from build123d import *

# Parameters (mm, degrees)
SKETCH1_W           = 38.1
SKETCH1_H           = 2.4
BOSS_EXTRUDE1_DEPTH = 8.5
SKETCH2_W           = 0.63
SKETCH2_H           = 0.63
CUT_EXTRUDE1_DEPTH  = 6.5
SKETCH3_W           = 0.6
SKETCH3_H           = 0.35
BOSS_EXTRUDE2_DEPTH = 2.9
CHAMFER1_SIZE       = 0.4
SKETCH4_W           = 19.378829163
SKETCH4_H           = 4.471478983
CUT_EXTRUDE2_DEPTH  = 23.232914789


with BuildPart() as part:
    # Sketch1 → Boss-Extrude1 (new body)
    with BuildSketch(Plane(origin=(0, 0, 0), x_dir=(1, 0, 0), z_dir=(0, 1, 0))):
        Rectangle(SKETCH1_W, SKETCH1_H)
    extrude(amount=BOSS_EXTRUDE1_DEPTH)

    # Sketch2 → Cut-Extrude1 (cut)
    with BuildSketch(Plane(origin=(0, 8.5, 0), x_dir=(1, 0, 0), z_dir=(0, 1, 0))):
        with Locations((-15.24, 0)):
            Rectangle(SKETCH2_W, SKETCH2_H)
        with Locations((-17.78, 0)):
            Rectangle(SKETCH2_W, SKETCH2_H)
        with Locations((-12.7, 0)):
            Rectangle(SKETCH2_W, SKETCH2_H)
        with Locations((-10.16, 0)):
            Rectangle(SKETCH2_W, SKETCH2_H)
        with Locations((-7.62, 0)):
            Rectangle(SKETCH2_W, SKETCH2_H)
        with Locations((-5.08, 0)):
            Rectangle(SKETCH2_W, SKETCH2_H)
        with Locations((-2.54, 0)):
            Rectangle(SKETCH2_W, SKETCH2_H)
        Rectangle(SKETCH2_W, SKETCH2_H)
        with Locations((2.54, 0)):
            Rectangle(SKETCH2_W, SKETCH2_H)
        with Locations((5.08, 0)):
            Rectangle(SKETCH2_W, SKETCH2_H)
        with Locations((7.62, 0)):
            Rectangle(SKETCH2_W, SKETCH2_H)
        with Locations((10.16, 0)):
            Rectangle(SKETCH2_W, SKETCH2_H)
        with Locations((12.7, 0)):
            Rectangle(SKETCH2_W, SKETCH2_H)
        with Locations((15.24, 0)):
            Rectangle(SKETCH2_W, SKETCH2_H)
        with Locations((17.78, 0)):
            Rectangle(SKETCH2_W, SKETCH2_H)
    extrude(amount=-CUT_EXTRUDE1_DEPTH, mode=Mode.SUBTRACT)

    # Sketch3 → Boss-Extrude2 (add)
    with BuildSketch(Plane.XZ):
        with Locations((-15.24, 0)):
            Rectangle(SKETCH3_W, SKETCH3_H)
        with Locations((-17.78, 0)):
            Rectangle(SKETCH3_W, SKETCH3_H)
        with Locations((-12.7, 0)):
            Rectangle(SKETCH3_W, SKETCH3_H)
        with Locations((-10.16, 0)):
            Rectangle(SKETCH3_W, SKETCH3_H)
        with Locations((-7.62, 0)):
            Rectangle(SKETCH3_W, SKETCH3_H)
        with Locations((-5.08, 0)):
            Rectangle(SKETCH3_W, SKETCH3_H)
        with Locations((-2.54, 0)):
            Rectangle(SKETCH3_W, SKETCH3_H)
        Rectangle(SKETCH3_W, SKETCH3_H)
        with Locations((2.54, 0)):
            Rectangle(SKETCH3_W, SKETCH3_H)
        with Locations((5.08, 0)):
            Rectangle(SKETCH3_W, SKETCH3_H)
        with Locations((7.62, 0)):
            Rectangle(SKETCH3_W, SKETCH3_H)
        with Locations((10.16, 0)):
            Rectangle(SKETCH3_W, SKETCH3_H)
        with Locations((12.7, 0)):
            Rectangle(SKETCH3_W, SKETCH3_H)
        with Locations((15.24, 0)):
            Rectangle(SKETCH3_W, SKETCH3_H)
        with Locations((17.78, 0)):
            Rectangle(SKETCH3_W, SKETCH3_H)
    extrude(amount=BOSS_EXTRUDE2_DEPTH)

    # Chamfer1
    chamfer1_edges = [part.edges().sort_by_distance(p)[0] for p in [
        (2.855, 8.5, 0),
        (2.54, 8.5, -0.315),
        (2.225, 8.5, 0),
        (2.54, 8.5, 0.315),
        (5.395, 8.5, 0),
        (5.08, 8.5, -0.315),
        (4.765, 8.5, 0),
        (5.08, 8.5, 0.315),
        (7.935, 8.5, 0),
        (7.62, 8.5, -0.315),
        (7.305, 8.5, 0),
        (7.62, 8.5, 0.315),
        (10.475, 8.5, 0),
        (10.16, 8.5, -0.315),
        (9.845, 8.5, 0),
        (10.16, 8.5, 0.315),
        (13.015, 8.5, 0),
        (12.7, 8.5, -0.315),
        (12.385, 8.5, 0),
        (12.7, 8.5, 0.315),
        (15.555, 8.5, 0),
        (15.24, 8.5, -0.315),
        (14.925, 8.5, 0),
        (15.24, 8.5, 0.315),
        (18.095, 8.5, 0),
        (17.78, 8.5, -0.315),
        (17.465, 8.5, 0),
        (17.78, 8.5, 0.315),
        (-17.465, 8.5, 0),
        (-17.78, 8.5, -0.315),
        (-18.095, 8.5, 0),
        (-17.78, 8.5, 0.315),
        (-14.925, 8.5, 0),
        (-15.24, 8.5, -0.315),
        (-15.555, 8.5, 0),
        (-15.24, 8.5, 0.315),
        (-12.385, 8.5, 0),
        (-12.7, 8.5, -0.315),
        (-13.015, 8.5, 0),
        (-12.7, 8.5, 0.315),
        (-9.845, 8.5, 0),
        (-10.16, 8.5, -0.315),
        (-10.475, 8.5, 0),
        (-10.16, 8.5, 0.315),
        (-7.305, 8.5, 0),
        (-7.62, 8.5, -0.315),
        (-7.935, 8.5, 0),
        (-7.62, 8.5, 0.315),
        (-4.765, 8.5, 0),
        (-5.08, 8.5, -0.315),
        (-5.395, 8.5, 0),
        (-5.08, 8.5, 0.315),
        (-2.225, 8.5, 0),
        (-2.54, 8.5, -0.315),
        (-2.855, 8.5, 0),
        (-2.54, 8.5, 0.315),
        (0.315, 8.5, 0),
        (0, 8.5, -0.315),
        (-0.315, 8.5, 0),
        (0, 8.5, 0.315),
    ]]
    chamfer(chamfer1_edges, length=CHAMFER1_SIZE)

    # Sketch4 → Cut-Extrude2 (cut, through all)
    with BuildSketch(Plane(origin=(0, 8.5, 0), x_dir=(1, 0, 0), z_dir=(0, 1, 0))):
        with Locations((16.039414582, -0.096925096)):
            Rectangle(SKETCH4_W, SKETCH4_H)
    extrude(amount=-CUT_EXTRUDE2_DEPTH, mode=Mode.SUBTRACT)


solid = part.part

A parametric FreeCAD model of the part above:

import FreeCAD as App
import Part
import Sketcher
from FreeCAD import Vector


def edges_at(feature, points):
    """Names of the edges that pass closest to the given points."""
    edges = feature.Shape.Edges
    near = lambda p: min(range(len(edges)), key=lambda i: edges[i].distToShape(Part.Vertex(*p))[0])
    return sorted({f"Edge{near(p) + 1}" for p in points})


def add_polygon(sketch, points):
    """Adds a closed chain of lines whose ends are joined by coincident constraints."""
    first, n = sketch.GeometryCount, len(points)
    for a, b in zip(points, points[1:] + points[:1]):
        sketch.addGeometry(Part.LineSegment(App.Vector(*a, 0), App.Vector(*b, 0)), False)
    for i in range(n):
        sketch.addConstraint(Sketcher.Constraint("Coincident", first + i, 2, first + (i + 1) % n, 1))

doc = App.newDocument("Part")
body = doc.addObject("PartDesign::Body", "Body")

# Sketch on XZ plane
sketch1 = body.newObject("Sketcher::SketchObject", "Sketch")
sketch1.AttachmentSupport = (doc.getObject("XZ_Plane"), [""])
sketch1.MapMode = "FlatFace"
add_polygon(sketch1, [(-19.1, -1.2), (-19.1, 1.2), (19.1, 1.2), (19.1, -1.2)])  # lines 0-3
sketch1.addConstraint(Sketcher.Constraint("Vertical", 0))
sketch1.addConstraint(Sketcher.Constraint("Horizontal", 1))
sketch1.addConstraint(Sketcher.Constraint("Vertical", 2))
sketch1.addConstraint(Sketcher.Constraint("Horizontal", 3))
sketch1.addConstraint(Sketcher.Constraint("Symmetric", 0, 2, 2, 2, -1, 1))
sketch1.addConstraint(Sketcher.Constraint("DistanceX", 1, 1, 1, 2, 38.1))
sketch1.addConstraint(Sketcher.Constraint("DistanceY", 0, 1, 0, 2, 2.4))
pad1 = body.newObject("PartDesign::Pad", "Pad")
pad1.Profile = sketch1
pad1.Length = 8.5
pad1.Reversed = True

# Sketch on XZ plane
sketch2 = body.newObject("Sketcher::SketchObject", "Sketch001")
sketch2.AttachmentSupport = (doc.getObject("XZ_Plane"), [""])
sketch2.MapMode = "FlatFace"
sketch2.AttachmentOffset = App.Placement(Vector(0, 0, -8.5), App.Rotation())
add_polygon(sketch2, [(-15.6, -0.3), (-15.6, 0.3), (-14.9, 0.3), (-14.9, -0.3)])  # lines 0-3
add_polygon(sketch2, [(-18.1, -0.3), (-18.1, 0.3), (-17.5, 0.3), (-17.5, -0.3)])  # lines 4-7
add_polygon(sketch2, [(-13, -0.3), (-13, 0.3), (-12.4, 0.3), (-12.4, -0.3)])  # lines 8-11
add_polygon(sketch2, [(-10.5, -0.3), (-10.5, 0.3), (-9.8, 0.3), (-9.8, -0.3)])  # lines 12-15
add_polygon(sketch2, [(-7.9, -0.3), (-7.9, 0.3), (-7.3, 0.3), (-7.3, -0.3)])  # lines 16-19
add_polygon(sketch2, [(-5.4, -0.3), (-5.4, 0.3), (-4.8, 0.3), (-4.8, -0.3)])  # lines 20-23
add_polygon(sketch2, [(-2.9, -0.3), (-2.9, 0.3), (-2.2, 0.3), (-2.2, -0.3)])  # lines 24-27
add_polygon(sketch2, [(-0.3, -0.3), (-0.3, 0.3), (0.3, 0.3), (0.3, -0.3)])  # lines 28-31
add_polygon(sketch2, [(2.2, -0.3), (2.2, 0.3), (2.9, 0.3), (2.9, -0.3)])  # lines 32-35
add_polygon(sketch2, [(4.8, -0.3), (4.8, 0.3), (5.4, 0.3), (5.4, -0.3)])  # lines 36-39
add_polygon(sketch2, [(7.3, -0.3), (7.3, 0.3), (7.9, 0.3), (7.9, -0.3)])  # lines 40-43
add_polygon(sketch2, [(9.8, -0.3), (9.8, 0.3), (10.5, 0.3), (10.5, -0.3)])  # lines 44-47
add_polygon(sketch2, [(12.4, -0.3), (12.4, 0.3), (13, 0.3), (13, -0.3)])  # lines 48-51
add_polygon(sketch2, [(14.9, -0.3), (14.9, 0.3), (15.6, 0.3), (15.6, -0.3)])  # lines 52-55
add_polygon(sketch2, [(17.5, -0.3), (17.5, 0.3), (18.1, 0.3), (18.1, -0.3)])  # lines 56-59
sketch2.addConstraint(Sketcher.Constraint("Vertical", 0))
sketch2.addConstraint(Sketcher.Constraint("Horizontal", 1))
sketch2.addConstraint(Sketcher.Constraint("Vertical", 2))
sketch2.addConstraint(Sketcher.Constraint("Horizontal", 3))
sketch2.addConstraint(Sketcher.Constraint("Vertical", 4))
sketch2.addConstraint(Sketcher.Constraint("Horizontal", 5))
sketch2.addConstraint(Sketcher.Constraint("Vertical", 6))
sketch2.addConstraint(Sketcher.Constraint("Horizontal", 7))
sketch2.addConstraint(Sketcher.Constraint("Vertical", 8))
sketch2.addConstraint(Sketcher.Constraint("Horizontal", 9))
sketch2.addConstraint(Sketcher.Constraint("Vertical", 10))
sketch2.addConstraint(Sketcher.Constraint("Horizontal", 11))
sketch2.addConstraint(Sketcher.Constraint("Vertical", 12))
sketch2.addConstraint(Sketcher.Constraint("Horizontal", 13))
sketch2.addConstraint(Sketcher.Constraint("Vertical", 14))
sketch2.addConstraint(Sketcher.Constraint("Horizontal", 15))
sketch2.addConstraint(Sketcher.Constraint("Vertical", 16))
sketch2.addConstraint(Sketcher.Constraint("Horizontal", 17))
sketch2.addConstraint(Sketcher.Constraint("Vertical", 18))
sketch2.addConstraint(Sketcher.Constraint("Horizontal", 19))
sketch2.addConstraint(Sketcher.Constraint("Vertical", 20))
sketch2.addConstraint(Sketcher.Constraint("Horizontal", 21))
sketch2.addConstraint(Sketcher.Constraint("Vertical", 22))
sketch2.addConstraint(Sketcher.Constraint("Horizontal", 23))
sketch2.addConstraint(Sketcher.Constraint("Vertical", 24))
sketch2.addConstraint(Sketcher.Constraint("Horizontal", 25))
sketch2.addConstraint(Sketcher.Constraint("Vertical", 26))
sketch2.addConstraint(Sketcher.Constraint("Horizontal", 27))
sketch2.addConstraint(Sketcher.Constraint("Vertical", 28))
sketch2.addConstraint(Sketcher.Constraint("Horizontal", 29))
sketch2.addConstraint(Sketcher.Constraint("Vertical", 30))
sketch2.addConstraint(Sketcher.Constraint("Horizontal", 31))
sketch2.addConstraint(Sketcher.Constraint("Vertical", 32))
sketch2.addConstraint(Sketcher.Constraint("Horizontal", 33))
sketch2.addConstraint(Sketcher.Constraint("Vertical", 34))
sketch2.addConstraint(Sketcher.Constraint("Horizontal", 35))
sketch2.addConstraint(Sketcher.Constraint("Vertical", 36))
sketch2.addConstraint(Sketcher.Constraint("Horizontal", 37))
sketch2.addConstraint(Sketcher.Constraint("Vertical", 38))
sketch2.addConstraint(Sketcher.Constraint("Horizontal", 39))
sketch2.addConstraint(Sketcher.Constraint("Vertical", 40))
sketch2.addConstraint(Sketcher.Constraint("Horizontal", 41))
sketch2.addConstraint(Sketcher.Constraint("Vertical", 42))
sketch2.addConstraint(Sketcher.Constraint("Horizontal", 43))
sketch2.addConstraint(Sketcher.Constraint("Vertical", 44))
sketch2.addConstraint(Sketcher.Constraint("Horizontal", 45))
sketch2.addConstraint(Sketcher.Constraint("Vertical", 46))
sketch2.addConstraint(Sketcher.Constraint("Horizontal", 47))
sketch2.addConstraint(Sketcher.Constraint("Vertical", 48))
sketch2.addConstraint(Sketcher.Constraint("Horizontal", 49))
sketch2.addConstraint(Sketcher.Constraint("Vertical", 50))
sketch2.addConstraint(Sketcher.Constraint("Horizontal", 51))
sketch2.addConstraint(Sketcher.Constraint("Vertical", 52))
sketch2.addConstraint(Sketcher.Constraint("Horizontal", 53))
sketch2.addConstraint(Sketcher.Constraint("Vertical", 54))
sketch2.addConstraint(Sketcher.Constraint("Horizontal", 55))
sketch2.addConstraint(Sketcher.Constraint("Vertical", 56))
sketch2.addConstraint(Sketcher.Constraint("Horizontal", 57))
sketch2.addConstraint(Sketcher.Constraint("Vertical", 58))
sketch2.addConstraint(Sketcher.Constraint("Horizontal", 59))
sketch2.addConstraint(Sketcher.Constraint("Symmetric", 28, 2, 30, 2, -1, 1))
sketch2.addConstraint(Sketcher.Constraint("Symmetric", 26, 2, 32, 2, -1, 1))
sketch2.addConstraint(Sketcher.Constraint("Symmetric", 24, 2, 34, 2, -1, 1))
sketch2.addConstraint(Sketcher.Constraint("Symmetric", 22, 2, 36, 2, -1, 1))
sketch2.addConstraint(Sketcher.Constraint("Symmetric", 20, 2, 38, 2, -1, 1))
sketch2.addConstraint(Sketcher.Constraint("Symmetric", 18, 2, 40, 2, -1, 1))
sketch2.addConstraint(Sketcher.Constraint("Symmetric", 16, 2, 42, 2, -1, 1))
sketch2.addConstraint(Sketcher.Constraint("Symmetric", 14, 2, 44, 2, -1, 1))
sketch2.addConstraint(Sketcher.Constraint("Symmetric", 12, 2, 46, 2, -1, 1))
sketch2.addConstraint(Sketcher.Constraint("Symmetric", 10, 2, 48, 2, -1, 1))
sketch2.addConstraint(Sketcher.Constraint("Symmetric", 8, 2, 50, 2, -1, 1))
sketch2.addConstraint(Sketcher.Constraint("Symmetric", 2, 2, 52, 2, -1, 1))
sketch2.addConstraint(Sketcher.Constraint("Symmetric", 0, 2, 54, 2, -1, 1))
sketch2.addConstraint(Sketcher.Constraint("Symmetric", 6, 2, 56, 2, -1, 1))
sketch2.addConstraint(Sketcher.Constraint("Symmetric", 4, 2, 58, 2, -1, 1))
sketch2.addConstraint(Sketcher.Constraint("Horizontal", 1, 2, 4, 2))
sketch2.addConstraint(Sketcher.Constraint("Horizontal", 3, 2, 6, 2))
sketch2.addConstraint(Sketcher.Constraint("Horizontal", 5, 2, 8, 2))
sketch2.addConstraint(Sketcher.Constraint("Horizontal", 7, 2, 10, 2))
sketch2.addConstraint(Sketcher.Constraint("Horizontal", 9, 2, 12, 2))
sketch2.addConstraint(Sketcher.Constraint("Horizontal", 11, 2, 14, 2))
sketch2.addConstraint(Sketcher.Constraint("Horizontal", 13, 2, 16, 2))
sketch2.addConstraint(Sketcher.Constraint("Horizontal", 15, 2, 18, 2))
sketch2.addConstraint(Sketcher.Constraint("Horizontal", 17, 2, 20, 2))
sketch2.addConstraint(Sketcher.Constraint("Horizontal", 19, 2, 22, 2))
sketch2.addConstraint(Sketcher.Constraint("Horizontal", 21, 2, 24, 2))
sketch2.addConstraint(Sketcher.Constraint("Horizontal", 23, 2, 26, 2))
sketch2.addConstraint(Sketcher.Constraint("Horizontal", 25, 2, 28, 2))
sketch2.addConstraint(Sketcher.Constraint("Horizontal", 27, 2, 30, 2))
sketch2.addConstraint(Sketcher.Constraint("Equal", 3, 5))
sketch2.addConstraint(Sketcher.Constraint("Equal", 7, 9))
sketch2.addConstraint(Sketcher.Constraint("Equal", 11, 13))
sketch2.addConstraint(Sketcher.Constraint("Equal", 15, 17))
sketch2.addConstraint(Sketcher.Constraint("Equal", 19, 21))
sketch2.addConstraint(Sketcher.Constraint("Equal", 23, 25))
sketch2.addConstraint(Sketcher.Constraint("Equal", 27, 29))
sketch2.addConstraint(Sketcher.Constraint("Equal", 59, 0))
sketch2.addConstraint(Sketcher.Constraint("DistanceX", 1, 1, 1, 2, 0.63))
sketch2.addConstraint(Sketcher.Constraint("DistanceX", 4, 2, 0, 2, 2.54))
sketch2.addConstraint(Sketcher.Constraint("DistanceX", 1, 2, 8, 2, 1.91))
sketch2.addConstraint(Sketcher.Constraint("DistanceX", 9, 2, 12, 2, 1.91))
sketch2.addConstraint(Sketcher.Constraint("DistanceX", 13, 2, 16, 2, 1.91))
sketch2.addConstraint(Sketcher.Constraint("DistanceX", 17, 2, 20, 2, 1.91))
sketch2.addConstraint(Sketcher.Constraint("DistanceX", 21, 2, 24, 2, 1.91))
sketch2.addConstraint(Sketcher.Constraint("DistanceX", 25, 2, 28, 2, 1.91))
pocket1 = body.newObject("PartDesign::Pocket", "Pocket")
pocket1.Profile = sketch2
pocket1.Length = 6.5
pocket1.Reversed = True

# Sketch on XZ plane
sketch3 = body.newObject("Sketcher::SketchObject", "Sketch002")
sketch3.AttachmentSupport = (doc.getObject("XZ_Plane"), [""])
sketch3.MapMode = "FlatFace"
add_polygon(sketch3, [(-15.54, 0.17), (-15.54, -0.17), (-14.94, -0.17), (-14.94, 0.17)])  # lines 0-3
add_polygon(sketch3, [(-18.08, 0.17), (-18.08, -0.17), (-17.48, -0.17), (-17.48, 0.17)])  # lines 4-7
add_polygon(sketch3, [(-13, 0.17), (-13, -0.17), (-12.4, -0.17), (-12.4, 0.17)])  # lines 8-11
add_polygon(sketch3, [(-10.46, 0.17), (-10.46, -0.17), (-9.86, -0.17), (-9.86, 0.17)])  # lines 12-15
add_polygon(sketch3, [(-7.92, 0.17), (-7.92, -0.17), (-7.32, -0.17), (-7.32, 0.17)])  # lines 16-19
add_polygon(sketch3, [(-5.38, 0.17), (-5.38, -0.17), (-4.78, -0.17), (-4.78, 0.17)])  # lines 20-23
add_polygon(sketch3, [(-2.84, 0.17), (-2.84, -0.17), (-2.24, -0.17), (-2.24, 0.17)])  # lines 24-27
add_polygon(sketch3, [(-0.3, 0.17), (-0.3, -0.17), (0.3, -0.17), (0.3, 0.17)])  # lines 28-31
add_polygon(sketch3, [(2.24, 0.17), (2.24, -0.17), (2.84, -0.17), (2.84, 0.17)])  # lines 32-35
add_polygon(sketch3, [(4.78, 0.17), (4.78, -0.17), (5.38, -0.17), (5.38, 0.17)])  # lines 36-39
add_polygon(sketch3, [(7.32, 0.17), (7.32, -0.17), (7.92, -0.17), (7.92, 0.17)])  # lines 40-43
add_polygon(sketch3, [(9.86, 0.17), (9.86, -0.17), (10.46, -0.17), (10.46, 0.17)])  # lines 44-47
add_polygon(sketch3, [(12.4, 0.17), (12.4, -0.17), (13, -0.17), (13, 0.17)])  # lines 48-51
add_polygon(sketch3, [(14.94, 0.17), (14.94, -0.17), (15.54, -0.17), (15.54, 0.17)])  # lines 52-55
add_polygon(sketch3, [(17.48, 0.17), (17.48, -0.17), (18.08, -0.17), (18.08, 0.17)])  # lines 56-59
sketch3.addConstraint(Sketcher.Constraint("Vertical", 0))
sketch3.addConstraint(Sketcher.Constraint("Horizontal", 1))
sketch3.addConstraint(Sketcher.Constraint("Vertical", 2))
sketch3.addConstraint(Sketcher.Constraint("Horizontal", 3))
sketch3.addConstraint(Sketcher.Constraint("Vertical", 4))
sketch3.addConstraint(Sketcher.Constraint("Horizontal", 5))
sketch3.addConstraint(Sketcher.Constraint("Vertical", 6))
sketch3.addConstraint(Sketcher.Constraint("Horizontal", 7))
sketch3.addConstraint(Sketcher.Constraint("Vertical", 8))
sketch3.addConstraint(Sketcher.Constraint("Horizontal", 9))
sketch3.addConstraint(Sketcher.Constraint("Vertical", 10))
sketch3.addConstraint(Sketcher.Constraint("Horizontal", 11))
sketch3.addConstraint(Sketcher.Constraint("Vertical", 12))
sketch3.addConstraint(Sketcher.Constraint("Horizontal", 13))
sketch3.addConstraint(Sketcher.Constraint("Vertical", 14))
sketch3.addConstraint(Sketcher.Constraint("Horizontal", 15))
sketch3.addConstraint(Sketcher.Constraint("Vertical", 16))
sketch3.addConstraint(Sketcher.Constraint("Horizontal", 17))
sketch3.addConstraint(Sketcher.Constraint("Vertical", 18))
sketch3.addConstraint(Sketcher.Constraint("Horizontal", 19))
sketch3.addConstraint(Sketcher.Constraint("Vertical", 20))
sketch3.addConstraint(Sketcher.Constraint("Horizontal", 21))
sketch3.addConstraint(Sketcher.Constraint("Vertical", 22))
sketch3.addConstraint(Sketcher.Constraint("Horizontal", 23))
sketch3.addConstraint(Sketcher.Constraint("Vertical", 24))
sketch3.addConstraint(Sketcher.Constraint("Horizontal", 25))
sketch3.addConstraint(Sketcher.Constraint("Vertical", 26))
sketch3.addConstraint(Sketcher.Constraint("Horizontal", 27))
sketch3.addConstraint(Sketcher.Constraint("Vertical", 28))
sketch3.addConstraint(Sketcher.Constraint("Horizontal", 29))
sketch3.addConstraint(Sketcher.Constraint("Vertical", 30))
sketch3.addConstraint(Sketcher.Constraint("Horizontal", 31))
sketch3.addConstraint(Sketcher.Constraint("Vertical", 32))
sketch3.addConstraint(Sketcher.Constraint("Horizontal", 33))
sketch3.addConstraint(Sketcher.Constraint("Vertical", 34))
sketch3.addConstraint(Sketcher.Constraint("Horizontal", 35))
sketch3.addConstraint(Sketcher.Constraint("Vertical", 36))
sketch3.addConstraint(Sketcher.Constraint("Horizontal", 37))
sketch3.addConstraint(Sketcher.Constraint("Vertical", 38))
sketch3.addConstraint(Sketcher.Constraint("Horizontal", 39))
sketch3.addConstraint(Sketcher.Constraint("Vertical", 40))
sketch3.addConstraint(Sketcher.Constraint("Horizontal", 41))
sketch3.addConstraint(Sketcher.Constraint("Vertical", 42))
sketch3.addConstraint(Sketcher.Constraint("Horizontal", 43))
sketch3.addConstraint(Sketcher.Constraint("Vertical", 44))
sketch3.addConstraint(Sketcher.Constraint("Horizontal", 45))
sketch3.addConstraint(Sketcher.Constraint("Vertical", 46))
sketch3.addConstraint(Sketcher.Constraint("Horizontal", 47))
sketch3.addConstraint(Sketcher.Constraint("Vertical", 48))
sketch3.addConstraint(Sketcher.Constraint("Horizontal", 49))
sketch3.addConstraint(Sketcher.Constraint("Vertical", 50))
sketch3.addConstraint(Sketcher.Constraint("Horizontal", 51))
sketch3.addConstraint(Sketcher.Constraint("Vertical", 52))
sketch3.addConstraint(Sketcher.Constraint("Horizontal", 53))
sketch3.addConstraint(Sketcher.Constraint("Vertical", 54))
sketch3.addConstraint(Sketcher.Constraint("Horizontal", 55))
sketch3.addConstraint(Sketcher.Constraint("Vertical", 56))
sketch3.addConstraint(Sketcher.Constraint("Horizontal", 57))
sketch3.addConstraint(Sketcher.Constraint("Vertical", 58))
sketch3.addConstraint(Sketcher.Constraint("Horizontal", 59))
sketch3.addConstraint(Sketcher.Constraint("Symmetric", 28, 2, 30, 2, -1, 1))
sketch3.addConstraint(Sketcher.Constraint("Symmetric", 26, 2, 32, 2, -1, 1))
sketch3.addConstraint(Sketcher.Constraint("Symmetric", 24, 2, 34, 2, -1, 1))
sketch3.addConstraint(Sketcher.Constraint("Symmetric", 22, 2, 36, 2, -1, 1))
sketch3.addConstraint(Sketcher.Constraint("Symmetric", 20, 2, 38, 2, -1, 1))
sketch3.addConstraint(Sketcher.Constraint("Symmetric", 18, 2, 40, 2, -1, 1))
sketch3.addConstraint(Sketcher.Constraint("Symmetric", 16, 2, 42, 2, -1, 1))
sketch3.addConstraint(Sketcher.Constraint("Symmetric", 14, 2, 44, 2, -1, 1))
sketch3.addConstraint(Sketcher.Constraint("Symmetric", 12, 2, 46, 2, -1, 1))
sketch3.addConstraint(Sketcher.Constraint("Symmetric", 10, 2, 48, 2, -1, 1))
sketch3.addConstraint(Sketcher.Constraint("Symmetric", 8, 2, 50, 2, -1, 1))
sketch3.addConstraint(Sketcher.Constraint("Symmetric", 2, 2, 52, 2, -1, 1))
sketch3.addConstraint(Sketcher.Constraint("Symmetric", 0, 2, 54, 2, -1, 1))
sketch3.addConstraint(Sketcher.Constraint("Symmetric", 6, 2, 56, 2, -1, 1))
sketch3.addConstraint(Sketcher.Constraint("Symmetric", 4, 2, 58, 2, -1, 1))
sketch3.addConstraint(Sketcher.Constraint("Horizontal", 1, 2, 4, 2))
sketch3.addConstraint(Sketcher.Constraint("Horizontal", 3, 2, 6, 2))
sketch3.addConstraint(Sketcher.Constraint("Horizontal", 5, 2, 8, 2))
sketch3.addConstraint(Sketcher.Constraint("Horizontal", 7, 2, 10, 2))
sketch3.addConstraint(Sketcher.Constraint("Horizontal", 9, 2, 12, 2))
sketch3.addConstraint(Sketcher.Constraint("Horizontal", 11, 2, 14, 2))
sketch3.addConstraint(Sketcher.Constraint("Horizontal", 13, 2, 16, 2))
sketch3.addConstraint(Sketcher.Constraint("Horizontal", 15, 2, 18, 2))
sketch3.addConstraint(Sketcher.Constraint("Horizontal", 17, 2, 20, 2))
sketch3.addConstraint(Sketcher.Constraint("Horizontal", 19, 2, 22, 2))
sketch3.addConstraint(Sketcher.Constraint("Horizontal", 21, 2, 24, 2))
sketch3.addConstraint(Sketcher.Constraint("Horizontal", 23, 2, 26, 2))
sketch3.addConstraint(Sketcher.Constraint("Horizontal", 25, 2, 28, 2))
sketch3.addConstraint(Sketcher.Constraint("Horizontal", 27, 2, 30, 2))
sketch3.addConstraint(Sketcher.Constraint("Equal", 3, 5))
sketch3.addConstraint(Sketcher.Constraint("Equal", 7, 9))
sketch3.addConstraint(Sketcher.Constraint("Equal", 11, 13))
sketch3.addConstraint(Sketcher.Constraint("Equal", 15, 17))
sketch3.addConstraint(Sketcher.Constraint("Equal", 19, 21))
sketch3.addConstraint(Sketcher.Constraint("Equal", 23, 25))
sketch3.addConstraint(Sketcher.Constraint("Equal", 27, 29))
sketch3.addConstraint(Sketcher.Constraint("DistanceX", 1, 1, 1, 2, 0.6))
sketch3.addConstraint(Sketcher.Constraint("DistanceX", 8, 2, -1, 1, 13.0))
sketch3.addConstraint(Sketcher.Constraint("DistanceY", 0, 2, 0, 1, 0.35))
sketch3.addConstraint(Sketcher.Constraint("DistanceX", 0, 2, -1, 1, 15.54))
sketch3.addConstraint(Sketcher.Constraint("DistanceX", 4, 2, -1, 1, 18.08))
sketch3.addConstraint(Sketcher.Constraint("DistanceX", 12, 2, -1, 1, 10.46))
sketch3.addConstraint(Sketcher.Constraint("DistanceX", 16, 2, -1, 1, 7.92))
sketch3.addConstraint(Sketcher.Constraint("DistanceX", 20, 2, -1, 1, 5.38))
sketch3.addConstraint(Sketcher.Constraint("DistanceX", 24, 2, -1, 1, 2.84))
pad2 = body.newObject("PartDesign::Pad", "Pad001")
pad2.Profile = sketch3
pad2.Length = 2.9
doc.recompute()

chamfer = body.newObject("PartDesign::Chamfer", "Chamfer")
chamfer.Base = (pad2, edges_at(pad2, [
    (2.855, 8.5, 0),
    (2.54, 8.5, -0.315),
    (2.225, 8.5, 0),
    (2.54, 8.5, 0.315),
    (5.395, 8.5, 0),
    (5.08, 8.5, -0.315),
    (4.765, 8.5, 0),
    (5.08, 8.5, 0.315),
    (7.935, 8.5, 0),
    (7.62, 8.5, -0.315),
    (7.305, 8.5, 0),
    (7.62, 8.5, 0.315),
    (10.475, 8.5, 0),
    (10.16, 8.5, -0.315),
    (9.845, 8.5, 0),
    (10.16, 8.5, 0.315),
    (13.015, 8.5, 0),
    (12.7, 8.5, -0.315),
    (12.385, 8.5, 0),
    (12.7, 8.5, 0.315),
    (15.555, 8.5, 0),
    (15.24, 8.5, -0.315),
    (14.925, 8.5, 0),
    (15.24, 8.5, 0.315),
    (18.095, 8.5, 0),
    (17.78, 8.5, -0.315),
    (17.465, 8.5, 0),
    (17.78, 8.5, 0.315),
    (-17.465, 8.5, 0),
    (-17.78, 8.5, -0.315),
    (-18.095, 8.5, 0),
    (-17.78, 8.5, 0.315),
    (-14.925, 8.5, 0),
    (-15.24, 8.5, -0.315),
    (-15.555, 8.5, 0),
    (-15.24, 8.5, 0.315),
    (-12.385, 8.5, 0),
    (-12.7, 8.5, -0.315),
    (-13.015, 8.5, 0),
    (-12.7, 8.5, 0.315),
    (-9.845, 8.5, 0),
    (-10.16, 8.5, -0.315),
    (-10.475, 8.5, 0),
    (-10.16, 8.5, 0.315),
    (-7.305, 8.5, 0),
    (-7.62, 8.5, -0.315),
    (-7.935, 8.5, 0),
    (-7.62, 8.5, 0.315),
    (-4.765, 8.5, 0),
    (-5.08, 8.5, -0.315),
    (-5.395, 8.5, 0),
    (-5.08, 8.5, 0.315),
    (-2.225, 8.5, 0),
    (-2.54, 8.5, -0.315),
    (-2.855, 8.5, 0),
    (-2.54, 8.5, 0.315),
    (0.315, 8.5, 0),
    (0, 8.5, -0.315),
    (-0.315, 8.5, 0),
    (0, 8.5, 0.315),
]))
chamfer.Size = 0.4

# Sketch on XZ plane
sketch4 = body.newObject("Sketcher::SketchObject", "Sketch003")
sketch4.AttachmentSupport = (doc.getObject("XZ_Plane"), [""])
sketch4.MapMode = "FlatFace"
sketch4.AttachmentOffset = App.Placement(Vector(0, 0, -8.5), App.Rotation())
add_polygon(sketch4, [(6.3, -2.1), (6.3, 2.3), (25.7, 2.3), (25.7, -2.1)])  # lines 0-3
sketch4.addConstraint(Sketcher.Constraint("Vertical", 0))
sketch4.addConstraint(Sketcher.Constraint("Horizontal", 1))
sketch4.addConstraint(Sketcher.Constraint("Vertical", 2))
sketch4.addConstraint(Sketcher.Constraint("Horizontal", 3))
sketch4.addConstraint(Sketcher.Constraint("DistanceX", -1, 1, 0, 2, 6.35))
sketch4.addConstraint(Sketcher.Constraint("DistanceX", 1, 1, 1, 2, 19.378829))
sketch4.addConstraint(Sketcher.Constraint("DistanceY", 0, 1, 0, 2, 4.471479))
sketch4.addConstraint(Sketcher.Constraint("DistanceY", -1, 1, 0, 2, 2.332665))
pocket2 = body.newObject("PartDesign::Pocket", "Pocket001")
pocket2.Profile = sketch4
pocket2.Type = "ThroughAll"
pocket2.Reversed = True

doc.recompute()
